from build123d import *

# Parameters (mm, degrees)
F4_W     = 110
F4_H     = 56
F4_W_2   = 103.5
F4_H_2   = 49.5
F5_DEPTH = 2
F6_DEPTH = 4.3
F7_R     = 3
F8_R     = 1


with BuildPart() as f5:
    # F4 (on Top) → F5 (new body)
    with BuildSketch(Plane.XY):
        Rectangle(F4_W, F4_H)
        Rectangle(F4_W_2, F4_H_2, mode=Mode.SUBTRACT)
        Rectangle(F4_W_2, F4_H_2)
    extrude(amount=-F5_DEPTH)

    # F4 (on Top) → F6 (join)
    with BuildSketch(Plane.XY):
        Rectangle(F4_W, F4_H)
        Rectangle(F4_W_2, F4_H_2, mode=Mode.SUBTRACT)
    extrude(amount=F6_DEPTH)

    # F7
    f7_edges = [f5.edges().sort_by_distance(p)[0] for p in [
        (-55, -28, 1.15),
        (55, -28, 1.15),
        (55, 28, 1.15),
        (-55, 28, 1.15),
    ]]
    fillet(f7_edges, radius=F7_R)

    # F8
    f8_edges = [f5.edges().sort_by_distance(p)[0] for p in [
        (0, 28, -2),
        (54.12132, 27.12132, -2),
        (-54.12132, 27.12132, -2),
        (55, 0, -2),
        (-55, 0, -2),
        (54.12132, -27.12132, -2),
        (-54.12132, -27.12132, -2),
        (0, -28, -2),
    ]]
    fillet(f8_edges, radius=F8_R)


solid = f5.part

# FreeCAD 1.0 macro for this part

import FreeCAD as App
import Part
import Sketcher
from FreeCAD import Vector


def edges_at(feature, points):
    """Names of the edges that pass closest to the given points."""
    edges = feature.Shape.Edges
    near = lambda p: min(range(len(edges)), key=lambda i: edges[i].distToShape(Part.Vertex(*p))[0])
    return sorted({f"Edge{near(p) + 1}" for p in points})

doc = App.newDocument("Part")
body = doc.addObject("PartDesign::Body", "Body")

# Sketch on XY plane
sketch1 = doc.addObject("Sketcher::SketchObject", "Sketch")
body.addObject(sketch1)
sketch1.AttachmentSupport = (doc.XY_Plane, [""])
sketch1.MapMode = "FlatFace"
sketch1.addGeometry([
    Part.LineSegment(Vector(-55, 28, 0), Vector(-55, -28, 0)),
    Part.LineSegment(Vector(-55, -28, 0), Vector(55, -28, 0)),
    Part.LineSegment(Vector(55, -28, 0), Vector(55, 28, 0)),
    Part.LineSegment(Vector(55, 28, 0), Vector(-55, 28, 0)),
], False)
sketch1.addConstraint([
    Sketcher.Constraint("Coincident", 0, 2, 1, 1),
    Sketcher.Constraint("Coincident", 1, 2, 2, 1),
    Sketcher.Constraint("Coincident", 2, 2, 3, 1),
    Sketcher.Constraint("Coincident", 3, 2, 0, 1),
    Sketcher.Constraint("Vertical", 0),
    Sketcher.Constraint("Horizontal", 1),
    Sketcher.Constraint("Vertical", 2),
    Sketcher.Constraint("Horizontal", 3),
    Sketcher.Constraint("Symmetric", 0, 2, 2, 2, -1, 1),
    Sketcher.Constraint("DistanceX", 1, 1, 1, 2, 110.0),
    Sketcher.Constraint("DistanceY", 0, 2, 0, 1, 56.0),
])
pad1 = doc.addObject("PartDesign::Pad", "Pad")
body.addObject(pad1)
pad1.Profile = sketch1
pad1.Length = 2
pad1.Reversed = True

# Sketch on XY plane
sketch2 = doc.addObject("Sketcher::SketchObject", "Sketch001")
body.addObject(sketch2)
sketch2.AttachmentSupport = (doc.XY_Plane, [""])
sketch2.MapMode = "FlatFace"
sketch2.addGeometry([
    Part.LineSegment(Vector(-55, 28, 0), Vector(-55, -28, 0)),  # 0
    Part.LineSegment(Vector(-55, -28, 0), Vector(55, -28, 0)),  # 1
    Part.LineSegment(Vector(55, -28, 0), Vector(55, 28, 0)),  # 2
    Part.LineSegment(Vector(55, 28, 0), Vector(-55, 28, 0)),  # 3
    Part.LineSegment(Vector(52, -25, 0), Vector(-52, -25, 0)),  # 4
    Part.LineSegment(Vector(-52, -25, 0), Vector(-52, 25, 0)),  # 5
    Part.LineSegment(Vector(-52, 25, 0), Vector(52, 25, 0)),  # 6
    Part.LineSegment(Vector(52, 25, 0), Vector(52, -25, 0)),  # 7
], False)
sketch2.addConstraint([
    Sketcher.Constraint("Coincident", 0, 2, 1, 1),
    Sketcher.Constraint("Coincident", 1, 2, 2, 1),
    Sketcher.Constraint("Coincident", 2, 2, 3, 1),
    Sketcher.Constraint("Coincident", 3, 2, 0, 1),
    Sketcher.Constraint("Coincident", 4, 2, 5, 1),
    Sketcher.Constraint("Coincident", 5, 2, 6, 1),
    Sketcher.Constraint("Coincident", 6, 2, 7, 1),
    Sketcher.Constraint("Coincident", 7, 2, 4, 1),
    Sketcher.Constraint("Vertical", 0),
    Sketcher.Constraint("Horizontal", 1),
    Sketcher.Constraint("Vertical", 2),
    Sketcher.Constraint("Horizontal", 3),
    Sketcher.Constraint("Horizontal", 4),
    Sketcher.Constraint("Vertical", 5),
    Sketcher.Constraint("Horizontal", 6),
    Sketcher.Constraint("Vertical", 7),
    Sketcher.Constraint("Symmetric", 0, 2, 2, 2, -1, 1),
    Sketcher.Constraint("Symmetric", 4, 2, 6, 2, -1, 1),
    Sketcher.Constraint("DistanceX", 1, 1, 1, 2, 110.0),
    Sketcher.Constraint("DistanceY", 0, 2, 0, 1, 56.0),
    Sketcher.Constraint("DistanceX", 4, 2, 4, 1, 103.5),
    Sketcher.Constraint("DistanceY", 5, 1, 5, 2, 49.5),
])
pad2 = doc.addObject("PartDesign::Pad", "Pad001")
body.addObject(pad2)
pad2.Profile = sketch2
pad2.Length = 4.3
doc.recompute()

fillet = doc.addObject("PartDesign::Fillet", "Fillet")
body.addObject(fillet)
fillet.Base = (pad2, edges_at(pad2, [
    (-55, -28, 1.15),
    (55, -28, 1.15),
    (55, 28, 1.15),
    (-55, 28, 1.15),
]))
fillet.Radius = 3
doc.recompute()

fillet2 = doc.addObject("PartDesign::Fillet", "Fillet001")
body.addObject(fillet2)
fillet2.Base = (fillet, edges_at(fillet, [
    (0, 28, -2),
    (54.121, 27.121, -2),
    (-54.121, 27.121, -2),
    (55, 0, -2),
    (-55, 0, -2),
    (54.121, -27.121, -2),
    (-54.121, -27.121, -2),
    (0, -28, -2),
]))
fillet2.Radius = 1

doc.recompute()
